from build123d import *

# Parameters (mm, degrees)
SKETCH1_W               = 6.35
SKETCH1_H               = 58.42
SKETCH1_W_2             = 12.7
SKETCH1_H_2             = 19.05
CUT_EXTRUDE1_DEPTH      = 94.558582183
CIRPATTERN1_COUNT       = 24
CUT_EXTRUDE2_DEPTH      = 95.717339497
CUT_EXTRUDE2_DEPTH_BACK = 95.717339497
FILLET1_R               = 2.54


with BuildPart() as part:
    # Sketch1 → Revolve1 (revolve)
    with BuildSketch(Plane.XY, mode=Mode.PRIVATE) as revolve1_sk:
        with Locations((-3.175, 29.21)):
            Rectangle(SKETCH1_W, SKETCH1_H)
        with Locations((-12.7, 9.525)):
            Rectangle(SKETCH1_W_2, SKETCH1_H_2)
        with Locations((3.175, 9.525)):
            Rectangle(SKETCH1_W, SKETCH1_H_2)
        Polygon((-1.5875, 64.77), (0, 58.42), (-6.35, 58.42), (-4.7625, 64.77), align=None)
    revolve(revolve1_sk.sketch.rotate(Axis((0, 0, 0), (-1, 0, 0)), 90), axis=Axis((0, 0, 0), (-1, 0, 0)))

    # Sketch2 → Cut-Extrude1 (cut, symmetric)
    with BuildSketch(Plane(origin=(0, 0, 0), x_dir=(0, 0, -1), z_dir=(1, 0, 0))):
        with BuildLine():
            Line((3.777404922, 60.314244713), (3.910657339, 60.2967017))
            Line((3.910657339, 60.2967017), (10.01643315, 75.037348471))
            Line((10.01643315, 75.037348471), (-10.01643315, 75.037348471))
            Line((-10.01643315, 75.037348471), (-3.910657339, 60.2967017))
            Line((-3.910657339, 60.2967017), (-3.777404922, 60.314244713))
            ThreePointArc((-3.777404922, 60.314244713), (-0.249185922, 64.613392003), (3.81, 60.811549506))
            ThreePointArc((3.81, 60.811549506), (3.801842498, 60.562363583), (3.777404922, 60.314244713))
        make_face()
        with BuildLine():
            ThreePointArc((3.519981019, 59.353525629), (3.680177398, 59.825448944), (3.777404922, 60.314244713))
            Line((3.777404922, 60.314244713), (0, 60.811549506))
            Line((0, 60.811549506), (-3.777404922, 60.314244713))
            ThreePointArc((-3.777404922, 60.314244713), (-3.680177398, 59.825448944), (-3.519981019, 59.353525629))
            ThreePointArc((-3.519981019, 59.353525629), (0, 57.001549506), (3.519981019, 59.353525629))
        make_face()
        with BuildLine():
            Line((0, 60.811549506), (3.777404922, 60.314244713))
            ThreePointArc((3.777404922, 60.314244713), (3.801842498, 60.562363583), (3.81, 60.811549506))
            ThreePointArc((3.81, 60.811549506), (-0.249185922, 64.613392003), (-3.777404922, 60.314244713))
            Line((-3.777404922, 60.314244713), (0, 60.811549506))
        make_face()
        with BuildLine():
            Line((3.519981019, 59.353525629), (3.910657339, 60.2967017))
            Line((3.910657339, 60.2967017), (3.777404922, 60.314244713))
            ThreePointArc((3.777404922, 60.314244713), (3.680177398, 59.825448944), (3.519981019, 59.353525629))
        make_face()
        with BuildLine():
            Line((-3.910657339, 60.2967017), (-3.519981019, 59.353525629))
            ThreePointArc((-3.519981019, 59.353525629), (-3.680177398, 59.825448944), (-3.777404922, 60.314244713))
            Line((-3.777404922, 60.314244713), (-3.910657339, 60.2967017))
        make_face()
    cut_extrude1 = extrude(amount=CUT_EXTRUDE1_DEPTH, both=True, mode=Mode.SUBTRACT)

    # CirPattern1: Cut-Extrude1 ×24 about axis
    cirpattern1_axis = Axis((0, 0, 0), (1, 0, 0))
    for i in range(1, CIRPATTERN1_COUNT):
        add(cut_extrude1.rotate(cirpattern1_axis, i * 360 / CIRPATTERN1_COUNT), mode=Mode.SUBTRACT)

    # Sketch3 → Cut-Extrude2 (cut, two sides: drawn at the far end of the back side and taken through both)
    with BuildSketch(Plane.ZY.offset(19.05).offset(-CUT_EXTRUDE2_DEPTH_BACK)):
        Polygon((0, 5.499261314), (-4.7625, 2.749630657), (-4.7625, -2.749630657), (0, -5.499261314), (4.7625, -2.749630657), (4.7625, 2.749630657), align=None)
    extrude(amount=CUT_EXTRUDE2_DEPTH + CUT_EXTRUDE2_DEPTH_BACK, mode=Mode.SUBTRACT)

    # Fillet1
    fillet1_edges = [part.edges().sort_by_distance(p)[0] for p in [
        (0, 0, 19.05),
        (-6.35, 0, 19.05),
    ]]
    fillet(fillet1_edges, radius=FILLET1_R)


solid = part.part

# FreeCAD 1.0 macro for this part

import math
import FreeCAD as App
import Part
import Sketcher
Q = App.Units.Quantity


def edges_at(feature, points):
    """Names of the edges that pass closest to the given points."""
    edges = feature.Shape.Edges
    near = lambda p: min(range(len(edges)), key=lambda i: edges[i].distToShape(Part.Vertex(*p))[0])
    return sorted({f"Edge{near(p) + 1}" for p in points})


def add_polygon(sketch, points):
    """Adds a closed chain of lines whose ends are joined by coincident constraints."""
    first, n = sketch.GeometryCount, len(points)
    for a, b in zip(points, points[1:] + points[:1]):
        sketch.addGeometry(Part.LineSegment(App.Vector(*a, 0), App.Vector(*b, 0)), False)
    for i in range(n):
        sketch.addConstraint(Sketcher.Constraint("Coincident", first + i, 2, first + (i + 1) % n, 1))

doc = App.newDocument("Part")
params = doc.addObject("Spreadsheet::Sheet", "Params")
for row, (alias, value) in enumerate([
    ("sketch1_width", "1 in"),
    ("sketch1_width2", "0.5 in"),
    ("sketch1_height", "1.55 in"),
    ("sketch1_height2", "0.75 in"),
    ("sketch1_width3", "0.125 in"),
    ("revolution_angle", "360 deg"),
    ("sketch2_radius", "0.15 in"),
    ("pocket1_length", "189.117164 mm"),
    ("fillet_radius", "0.1 in"),
], start=1):
    params.set(f"A{row}", alias)
    params.set(f"B{row}", "=" + value)
    params.setAlias(f"B{row}", alias)

body = doc.addObject("PartDesign::Body", "Body")

# Sketch on XY plane
sketch1 = doc.addObject("Sketcher::SketchObject", "Sketch")
body.addObject(sketch1)
sketch1.AttachmentSupport = (doc.XY_Plane, [""])
sketch1.MapMode = "FlatFace"
add_polygon(sketch1, [(-6.3, 58.4), (-6.3, 19.1), (-19.1, 19.1), (-19.1, 0), (6.3, 0), (6.3, 19.1), (0, 19.1), (0, 58.4), (-1.6, 64.8), (-4.8, 64.8)])  # lines 0-9
sketch1.addConstraint([
    Sketcher.Constraint("Vertical", 0),
    Sketcher.Constraint("Horizontal", 1),
    Sketcher.Constraint("Vertical", 2),
    Sketcher.Constraint("Horizontal", 3),
    Sketcher.Constraint("Vertical", 4),
    Sketcher.Constraint("Horizontal", 5),
    Sketcher.Constraint("Vertical", 6),
    Sketcher.Constraint("Horizontal", 8),
    Sketcher.Constraint("Symmetric", 0, 2, 4, 2, -2),
    Sketcher.Constraint("PointOnObject", 2, 2, -1),
    Sketcher.Constraint("PointOnObject", 5, 2, -2),
    Sketcher.Constraint("Horizontal", 6, 2, 9, 2),
    Sketcher.Constraint("Equal", 7, 9),
    Sketcher.Constraint("DistanceX", 3, 1, 3, 2, Q("1 in")),
    Sketcher.Constraint("DistanceX", 1, 2, 1, 1, Q("0.5 in")),
    Sketcher.Constraint("DistanceY", 0, 2, 0, 1, Q("1.55 in")),
    Sketcher.Constraint("DistanceY", 2, 2, 2, 1, Q("0.75 in")),
    Sketcher.Constraint("DistanceY", 5, 2, 7, 2, Q("1.8 in")),
    Sketcher.Constraint("DistanceX", 8, 2, 8, 1, Q("0.125 in")),
])
sketch1.setExpression("Constraints[23]", "Params.sketch1_width")
sketch1.setExpression("Constraints[24]", "Params.sketch1_width2")
sketch1.setExpression("Constraints[25]", "Params.sketch1_height")
sketch1.setExpression("Constraints[26]", "Params.sketch1_height2")
sketch1.setExpression("Constraints[28]", "Params.sketch1_width3")
revolution = doc.addObject("PartDesign::Revolution", "Revolution")
body.addObject(revolution)
revolution.Profile = sketch1
revolution.ReferenceAxis = (sketch1, ["H_Axis"])
revolution.setExpression("Angle", "Params.revolution_angle")

# Sketch on YZ plane
sketch2 = doc.addObject("Sketcher::SketchObject", "Sketch001")
body.addObject(sketch2)
sketch2.AttachmentSupport = (doc.YZ_Plane, [""])
sketch2.MapMode = "FlatFace"
sketch2.addGeometry([
    Part.LineSegment(App.Vector(75, 10, 0), App.Vector(60.3, 3.9, 0)),  # 0
    Part.LineSegment(App.Vector(60.3, 3.9, 0), App.Vector(59.4, 3.5, 0)),  # 1
    Part.ArcOfCircle(Part.Circle(App.Vector(60.8, 0, 0), App.Vector(0, 0, 1), 3.8), math.radians(112), math.radians(248)),  # 2
    Part.LineSegment(App.Vector(59.4, -3.5, 0), App.Vector(60.3, -3.9, 0)),  # 3
    Part.LineSegment(App.Vector(60.3, -3.9, 0), App.Vector(75, -10, 0)),  # 4
    Part.LineSegment(App.Vector(75, -10, 0), App.Vector(75, 10, 0)),  # 5
], False)
sketch2.addConstraint([
    Sketcher.Constraint("Coincident", 0, 2, 1, 1),
    Sketcher.Constraint("Tangent", 1, 2, 2, 1),
    Sketcher.Constraint("Tangent", 2, 2, 3, 1),
    Sketcher.Constraint("Coincident", 3, 2, 4, 1),
    Sketcher.Constraint("Coincident", 4, 2, 5, 1),
    Sketcher.Constraint("Coincident", 5, 2, 0, 1),
    Sketcher.Constraint("Vertical", 5),
    Sketcher.Constraint("Symmetric", 1, 2, 2, 2, -1),
    Sketcher.Constraint("Parallel", 0, 1),
    Sketcher.Constraint("Parallel", 3, 4),
    Sketcher.Constraint("Vertical", 0, 2, 3, 2),
    Sketcher.Constraint("Radius", 2, Q("0.15 in")),
    Sketcher.Constraint("Angle", 0, Q("-157.5 deg")),
    Sketcher.Constraint("DistanceX", -1, 1, 0, 2, 60.296702),
    Sketcher.Constraint("DistanceX", 2, 3, 4, 2, 14.225799),
    Sketcher.Constraint("Distance", 0, 15.955161),
])
sketch2.setExpression("Constraints[11]", "Params.sketch2_radius")
pocket1 = doc.addObject("PartDesign::Pocket", "Pocket")
body.addObject(pocket1)
pocket1.Profile = sketch2
pocket1.setExpression("Length", "Params.pocket1_length")
pocket1.Midplane = True
doc.recompute()

polarpattern = doc.addObject("PartDesign::PolarPattern", "PolarPattern")
body.addObject(polarpattern)
polarpattern.Originals = [pocket1]
polarpattern.Axis = (doc.X_Axis, [""])
polarpattern.Angle = 360
polarpattern.Occurrences = 24
body.Tip = polarpattern

# Sketch on YZ plane
sketch3 = doc.addObject("Sketcher::SketchObject", "Sketch002")
body.addObject(sketch3)
sketch3.AttachmentSupport = (doc.YZ_Plane, [""])
sketch3.MapMode = "FlatFace"
sketch3.AttachmentOffset = App.Placement(App.Vector(0, 0, -0.75 * 25.4), App.Rotation())
add_polygon(sketch3, [(5, 0), (3, -5), (-3, -5), (-5, 0), (-3, 5), (3, 5)])  # lines 0-5
sketch3.addConstraint([
    Sketcher.Constraint("Horizontal", 1),
    Sketcher.Constraint("Horizontal", 4),
    Sketcher.Constraint("Symmetric", 0, 2, 3, 2, -1, 1),
    Sketcher.Constraint("Symmetric", 2, 2, 5, 2, -1, 1),
    Sketcher.Constraint("PointOnObject", 2, 2, -1),
    Sketcher.Constraint("Parallel", 2, 5),
    Sketcher.Constraint("Vertical", 1, 2, 3, 2),
    Sketcher.Constraint("Angle", 0, Q("-120 deg")),
    Sketcher.Constraint("DistanceY", 0, 2, -1, 1, Q("0.1875 in")),
    Sketcher.Constraint("DistanceX", 1, 2, 1, 1, 5.499261),
])
pocket2 = doc.addObject("PartDesign::Pocket", "Pocket001")
body.addObject(pocket2)
pocket2.Profile = sketch3
pocket2.Type = "ThroughAll"
pocket2.Midplane = True
doc.recompute()

fillet = doc.addObject("PartDesign::Fillet", "Fillet")
body.addObject(fillet)
fillet.Base = (pocket2, edges_at(pocket2, [(0, 0, 19.05), (-6.35, 0, 19.05)]))
fillet.setExpression("Radius", "Params.fillet_radius")

doc.recompute()
